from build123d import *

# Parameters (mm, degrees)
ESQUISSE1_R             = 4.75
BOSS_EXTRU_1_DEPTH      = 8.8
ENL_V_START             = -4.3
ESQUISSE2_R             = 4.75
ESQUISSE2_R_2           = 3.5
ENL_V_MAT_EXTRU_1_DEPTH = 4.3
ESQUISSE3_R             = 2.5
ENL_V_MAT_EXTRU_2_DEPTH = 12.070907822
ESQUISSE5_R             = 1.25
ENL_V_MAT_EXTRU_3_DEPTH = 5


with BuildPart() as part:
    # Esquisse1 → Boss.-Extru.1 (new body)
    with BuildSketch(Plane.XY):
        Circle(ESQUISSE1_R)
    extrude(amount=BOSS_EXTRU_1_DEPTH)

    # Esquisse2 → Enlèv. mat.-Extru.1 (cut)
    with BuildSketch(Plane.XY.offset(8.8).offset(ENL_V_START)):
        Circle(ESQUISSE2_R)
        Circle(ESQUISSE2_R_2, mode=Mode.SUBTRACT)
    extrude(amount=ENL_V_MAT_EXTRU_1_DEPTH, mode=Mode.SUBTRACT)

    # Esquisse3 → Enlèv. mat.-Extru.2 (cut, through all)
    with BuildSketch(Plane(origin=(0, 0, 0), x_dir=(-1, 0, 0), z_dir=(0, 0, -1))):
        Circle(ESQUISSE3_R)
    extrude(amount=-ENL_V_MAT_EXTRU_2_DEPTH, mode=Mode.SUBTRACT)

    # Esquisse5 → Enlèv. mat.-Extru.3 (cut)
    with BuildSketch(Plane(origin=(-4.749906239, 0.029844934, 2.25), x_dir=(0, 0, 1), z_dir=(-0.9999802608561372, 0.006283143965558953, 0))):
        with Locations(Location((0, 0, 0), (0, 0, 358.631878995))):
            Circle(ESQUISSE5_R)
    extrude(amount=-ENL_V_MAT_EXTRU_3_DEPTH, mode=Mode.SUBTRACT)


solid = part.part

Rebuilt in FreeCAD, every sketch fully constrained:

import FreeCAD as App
import Part
import Sketcher
from FreeCAD import Vector

doc = App.newDocument("Part")
body = doc.addObject("PartDesign::Body", "Body")

# Sketch on XY plane
sketch1 = body.newObject("Sketcher::SketchObject", "Sketch")
sketch1.AttachmentSupport = (doc.getObject("XY_Plane"), [""])
sketch1.MapMode = "FlatFace"
sketch1.addGeometry(Part.Circle(Vector(0, 0, 0), Vector(0, 0, 1), 4.75), False)
sketch1.addConstraint([
    Sketcher.Constraint("Coincident", 0, 3, -1, 1),
    Sketcher.Constraint("Diameter", 0, 9.5),
])
pad1 = body.newObject("PartDesign::Pad", "Pad")
pad1.Profile = sketch1
pad1.Length = 8.8

# Sketch on XY plane
sketch2 = body.newObject("Sketcher::SketchObject", "Sketch001")
sketch2.AttachmentSupport = (doc.getObject("XY_Plane"), [""])
sketch2.MapMode = "FlatFace"
sketch2.AttachmentOffset = App.Placement(Vector(0, 0, 4.5), App.Rotation())
sketch2.addGeometry([
    Part.Circle(Vector(0, 0, 0), Vector(0, 0, 1), 4.75),
    Part.Circle(Vector(0, 0, 0), Vector(0, 0, 1), 3.5),
], False)
sketch2.addConstraint([
    Sketcher.Constraint("Coincident", 0, 3, -1, 1),
    Sketcher.Constraint("Coincident", 1, 3, -1, 1),
    Sketcher.Constraint("Diameter", 1, 7.0),
    Sketcher.Constraint("Diameter", 0, 9.5),
])
pocket1 = body.newObject("PartDesign::Pocket", "Pocket")
pocket1.Profile = sketch2
pocket1.Length = 4.3
pocket1.Reversed = True

# Sketch on XY plane
sketch3 = body.newObject("Sketcher::SketchObject", "Sketch002")
sketch3.AttachmentSupport = (doc.getObject("XY_Plane"), [""])
sketch3.MapMode = "FlatFace"
sketch3.addGeometry(Part.Circle(Vector(0, 0, 0), Vector(0, 0, 1), 2.5), False)
sketch3.addConstraint([
    Sketcher.Constraint("Coincident", 0, 3, -1, 1),
    Sketcher.Constraint("Diameter", 0, 5.0),
])
pocket2 = body.newObject("PartDesign::Pocket", "Pocket001")
pocket2.Profile = sketch3
pocket2.Type = "ThroughAll"
pocket2.Reversed = True

# Sketch on an angled plane
sketch4 = body.newObject("Sketcher::SketchObject", "Sketch003")
sketch4.Placement = App.Placement(Vector(-4.749906, 0.029845, 2.25), App.Rotation(Vector(0, 0, 1), Vector(0.006283144, 0.999980261, 0), Vector(-0.999980261, 0.006283144, 0), "ZXY"))
sketch4.addGeometry(Part.Circle(Vector(0, 0, 0), Vector(0, 0, 1), 1.25), False)
sketch4.addConstraint([
    Sketcher.Constraint("Coincident", 0, 3, -1, 1),
    Sketcher.Constraint("Diameter", 0, 2.5),
])
pocket3 = body.newObject("PartDesign::Pocket", "Pocket002")
pocket3.Profile = sketch4
pocket3.Length = 5

doc.recompute()
